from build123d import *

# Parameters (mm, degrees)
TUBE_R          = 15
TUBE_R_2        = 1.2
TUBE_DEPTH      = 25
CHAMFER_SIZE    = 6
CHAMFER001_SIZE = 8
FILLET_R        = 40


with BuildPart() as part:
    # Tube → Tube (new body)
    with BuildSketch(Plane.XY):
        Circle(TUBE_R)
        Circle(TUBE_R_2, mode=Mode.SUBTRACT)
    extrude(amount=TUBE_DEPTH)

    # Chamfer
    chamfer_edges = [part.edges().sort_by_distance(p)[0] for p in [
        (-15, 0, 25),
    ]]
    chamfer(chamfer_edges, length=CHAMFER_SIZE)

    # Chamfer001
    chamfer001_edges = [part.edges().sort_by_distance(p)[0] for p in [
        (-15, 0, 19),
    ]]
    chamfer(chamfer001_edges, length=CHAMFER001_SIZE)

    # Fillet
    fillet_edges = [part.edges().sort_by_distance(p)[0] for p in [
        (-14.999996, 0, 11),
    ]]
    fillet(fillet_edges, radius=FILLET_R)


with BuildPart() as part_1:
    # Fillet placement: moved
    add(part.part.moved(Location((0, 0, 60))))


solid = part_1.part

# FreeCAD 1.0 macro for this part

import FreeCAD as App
import Part
import Sketcher
from FreeCAD import Vector
Q = App.Units.Quantity


def edges_at(feature, points):
    """Names of the edges that pass closest to the given points."""
    edges = feature.Shape.Edges
    near = lambda p: min(range(len(edges)), key=lambda i: edges[i].distToShape(Part.Vertex(*p))[0])
    return sorted({f"Edge{near(p) + 1}" for p in points})

doc = App.newDocument("Part")
params = doc.addObject("Spreadsheet::Sheet", "Params")
for row, (alias, value) in enumerate([
    ("sketch1_diameter", "30 mm"),
    ("sketch1_diameter2", "2.4 mm"),
    ("pad1_length", "25 mm"),
    ("chamfer_size", "6 mm"),
    ("chamfer2_size", "8 mm"),
    ("fillet_radius", "40 mm"),
], start=1):
    params.set(f"A{row}", alias)
    params.set(f"B{row}", "=" + value)
    params.setAlias(f"B{row}", alias)

body = doc.addObject("PartDesign::Body", "Body")

# Sketch on XY plane
sketch1 = body.newObject("Sketcher::SketchObject", "Sketch")
sketch1.AttachmentSupport = (doc.getObject("XY_Plane"), [""])
sketch1.MapMode = "FlatFace"
sketch1.addGeometry([
    Part.Circle(Vector(0, 0, 0), Vector(0, 0, 1), 15),
    Part.Circle(Vector(0, 0, 0), Vector(0, 0, 1), 1.2),
], False)
sketch1.addConstraint([
    Sketcher.Constraint("Coincident", 0, 3, -1, 1),
    Sketcher.Constraint("Coincident", 1, 3, -1, 1),
    Sketcher.Constraint("Diameter", 0, Q("30 mm")),
    Sketcher.Constraint("Diameter", 1, Q("2.4 mm")),
])
sketch1.setExpression("Constraints[2]", "Params.sketch1_diameter")
sketch1.setExpression("Constraints[3]", "Params.sketch1_diameter2")
pad1 = body.newObject("PartDesign::Pad", "Pad")
pad1.Profile = sketch1
pad1.setExpression("Length", "Params.pad1_length")
doc.recompute()

chamfer = body.newObject("PartDesign::Chamfer", "Chamfer")
chamfer.Base = (pad1, edges_at(pad1, [(-15, 0, 25)]))
chamfer.setExpression("Size", "Params.chamfer_size")
doc.recompute()

chamfer2 = body.newObject("PartDesign::Chamfer", "Chamfer001")
chamfer2.Base = (chamfer, edges_at(chamfer, [(-15, 0, 19)]))
chamfer2.setExpression("Size", "Params.chamfer2_size")
doc.recompute()

fillet = body.newObject("PartDesign::Fillet", "Fillet")
fillet.Base = (chamfer2, edges_at(chamfer2, [(-15, 0, 11)]))
fillet.setExpression("Radius", "Params.fillet_radius")
body2 = doc.addObject("PartDesign::Body", "Body001")
doc.recompute()

body.Placement = App.Placement(Vector(0, 0, 60), App.Rotation(Vector(0, 0, 1), 0))
boolean = body2.newObject("PartDesign::Boolean", "Boolean")
boolean.Type = "Fuse"
boolean.addObjects([body])

doc.recompute()
